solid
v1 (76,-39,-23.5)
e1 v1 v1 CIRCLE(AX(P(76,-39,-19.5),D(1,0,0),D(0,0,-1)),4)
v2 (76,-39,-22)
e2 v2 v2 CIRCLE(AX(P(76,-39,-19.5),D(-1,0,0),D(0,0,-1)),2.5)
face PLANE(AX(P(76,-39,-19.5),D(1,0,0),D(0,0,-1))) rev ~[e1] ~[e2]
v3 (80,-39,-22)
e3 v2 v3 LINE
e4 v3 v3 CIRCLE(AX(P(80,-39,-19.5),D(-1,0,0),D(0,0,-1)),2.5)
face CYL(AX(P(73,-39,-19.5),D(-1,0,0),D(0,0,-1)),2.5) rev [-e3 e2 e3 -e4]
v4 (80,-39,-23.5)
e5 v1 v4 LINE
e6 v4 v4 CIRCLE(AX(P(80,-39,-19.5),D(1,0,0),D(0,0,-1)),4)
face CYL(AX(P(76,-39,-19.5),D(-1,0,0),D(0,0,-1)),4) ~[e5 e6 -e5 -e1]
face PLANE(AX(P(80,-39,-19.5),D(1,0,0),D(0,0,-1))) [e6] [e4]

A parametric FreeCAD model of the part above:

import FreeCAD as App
import Part
import Sketcher
Q = App.Units.Quantity

doc = App.newDocument("Part")
body = doc.addObject("PartDesign::Body", "Body")

# Sketch on YZ plane
sketch1 = doc.addObject("Sketcher::SketchObject", "Sketch")
body.addObject(sketch1)
sketch1.AttachmentSupport = (doc.YZ_Plane, [""])
sketch1.MapMode = "FlatFace"
sketch1.AttachmentOffset = App.Placement(App.Vector(0, 0, 23.5), App.Rotation())
sketch1.addGeometry(Part.Circle(App.Vector(-39, -22, 0), App.Vector(0, 0, 1), 2.5), False)
sketch1.addConstraint([
    Sketcher.Constraint("Diameter", 0, Q("5 mm")),
    Sketcher.Constraint("DistanceX", 0, 3, -1, 1, Q("39 mm")),
    Sketcher.Constraint("DistanceY", 0, 3, -1, 1, Q("22 mm")),
])
pad1 = doc.addObject("PartDesign::Pad", "Pad")
body.addObject(pad1)
pad1.Profile = sketch1
pad1.Length = 10
body2 = doc.addObject("PartDesign::Body", "Body001")

# Sketch on YZ plane
sketch2 = doc.addObject("Sketcher::SketchObject", "Sketch001")
body2.addObject(sketch2)
sketch2.AttachmentSupport = (doc.getObject("YZ_Plane001"), [""])
sketch2.MapMode = "FlatFace"
sketch2.AttachmentOffset = App.Placement(App.Vector(0, 0, 26.5), App.Rotation())
sketch2.addGeometry(Part.Circle(App.Vector(-39, -22, 0), App.Vector(0, 0, 1), 4), False)
sketch2.addConstraint([
    Sketcher.Constraint("Diameter", 0, Q("8 mm")),
    Sketcher.Constraint("DistanceX", 0, 3, -1, 1, Q("39 mm")),
    Sketcher.Constraint("DistanceY", 0, 3, -1, 1, Q("22 mm")),
])
pad2 = doc.addObject("PartDesign::Pad", "Pad001")
body2.addObject(pad2)
pad2.Profile = sketch2
pad2.Length = 4
doc.recompute()

boolean = doc.addObject("PartDesign::Boolean", "Boolean")
body2.addObject(boolean)
boolean.Type = "Cut"
boolean.addObjects([body])
body3 = doc.addObject("PartDesign::Body", "Body002")
doc.recompute()

body2.Placement = App.Placement(App.Vector(49.5, 0, 2.5), App.Rotation(App.Vector(0, 0, 1), 0))
boolean2 = doc.addObject("PartDesign::Boolean", "Boolean001")
body3.addObject(boolean2)
boolean2.Type = "Fuse"
boolean2.addObjects([body2])

doc.recompute()
